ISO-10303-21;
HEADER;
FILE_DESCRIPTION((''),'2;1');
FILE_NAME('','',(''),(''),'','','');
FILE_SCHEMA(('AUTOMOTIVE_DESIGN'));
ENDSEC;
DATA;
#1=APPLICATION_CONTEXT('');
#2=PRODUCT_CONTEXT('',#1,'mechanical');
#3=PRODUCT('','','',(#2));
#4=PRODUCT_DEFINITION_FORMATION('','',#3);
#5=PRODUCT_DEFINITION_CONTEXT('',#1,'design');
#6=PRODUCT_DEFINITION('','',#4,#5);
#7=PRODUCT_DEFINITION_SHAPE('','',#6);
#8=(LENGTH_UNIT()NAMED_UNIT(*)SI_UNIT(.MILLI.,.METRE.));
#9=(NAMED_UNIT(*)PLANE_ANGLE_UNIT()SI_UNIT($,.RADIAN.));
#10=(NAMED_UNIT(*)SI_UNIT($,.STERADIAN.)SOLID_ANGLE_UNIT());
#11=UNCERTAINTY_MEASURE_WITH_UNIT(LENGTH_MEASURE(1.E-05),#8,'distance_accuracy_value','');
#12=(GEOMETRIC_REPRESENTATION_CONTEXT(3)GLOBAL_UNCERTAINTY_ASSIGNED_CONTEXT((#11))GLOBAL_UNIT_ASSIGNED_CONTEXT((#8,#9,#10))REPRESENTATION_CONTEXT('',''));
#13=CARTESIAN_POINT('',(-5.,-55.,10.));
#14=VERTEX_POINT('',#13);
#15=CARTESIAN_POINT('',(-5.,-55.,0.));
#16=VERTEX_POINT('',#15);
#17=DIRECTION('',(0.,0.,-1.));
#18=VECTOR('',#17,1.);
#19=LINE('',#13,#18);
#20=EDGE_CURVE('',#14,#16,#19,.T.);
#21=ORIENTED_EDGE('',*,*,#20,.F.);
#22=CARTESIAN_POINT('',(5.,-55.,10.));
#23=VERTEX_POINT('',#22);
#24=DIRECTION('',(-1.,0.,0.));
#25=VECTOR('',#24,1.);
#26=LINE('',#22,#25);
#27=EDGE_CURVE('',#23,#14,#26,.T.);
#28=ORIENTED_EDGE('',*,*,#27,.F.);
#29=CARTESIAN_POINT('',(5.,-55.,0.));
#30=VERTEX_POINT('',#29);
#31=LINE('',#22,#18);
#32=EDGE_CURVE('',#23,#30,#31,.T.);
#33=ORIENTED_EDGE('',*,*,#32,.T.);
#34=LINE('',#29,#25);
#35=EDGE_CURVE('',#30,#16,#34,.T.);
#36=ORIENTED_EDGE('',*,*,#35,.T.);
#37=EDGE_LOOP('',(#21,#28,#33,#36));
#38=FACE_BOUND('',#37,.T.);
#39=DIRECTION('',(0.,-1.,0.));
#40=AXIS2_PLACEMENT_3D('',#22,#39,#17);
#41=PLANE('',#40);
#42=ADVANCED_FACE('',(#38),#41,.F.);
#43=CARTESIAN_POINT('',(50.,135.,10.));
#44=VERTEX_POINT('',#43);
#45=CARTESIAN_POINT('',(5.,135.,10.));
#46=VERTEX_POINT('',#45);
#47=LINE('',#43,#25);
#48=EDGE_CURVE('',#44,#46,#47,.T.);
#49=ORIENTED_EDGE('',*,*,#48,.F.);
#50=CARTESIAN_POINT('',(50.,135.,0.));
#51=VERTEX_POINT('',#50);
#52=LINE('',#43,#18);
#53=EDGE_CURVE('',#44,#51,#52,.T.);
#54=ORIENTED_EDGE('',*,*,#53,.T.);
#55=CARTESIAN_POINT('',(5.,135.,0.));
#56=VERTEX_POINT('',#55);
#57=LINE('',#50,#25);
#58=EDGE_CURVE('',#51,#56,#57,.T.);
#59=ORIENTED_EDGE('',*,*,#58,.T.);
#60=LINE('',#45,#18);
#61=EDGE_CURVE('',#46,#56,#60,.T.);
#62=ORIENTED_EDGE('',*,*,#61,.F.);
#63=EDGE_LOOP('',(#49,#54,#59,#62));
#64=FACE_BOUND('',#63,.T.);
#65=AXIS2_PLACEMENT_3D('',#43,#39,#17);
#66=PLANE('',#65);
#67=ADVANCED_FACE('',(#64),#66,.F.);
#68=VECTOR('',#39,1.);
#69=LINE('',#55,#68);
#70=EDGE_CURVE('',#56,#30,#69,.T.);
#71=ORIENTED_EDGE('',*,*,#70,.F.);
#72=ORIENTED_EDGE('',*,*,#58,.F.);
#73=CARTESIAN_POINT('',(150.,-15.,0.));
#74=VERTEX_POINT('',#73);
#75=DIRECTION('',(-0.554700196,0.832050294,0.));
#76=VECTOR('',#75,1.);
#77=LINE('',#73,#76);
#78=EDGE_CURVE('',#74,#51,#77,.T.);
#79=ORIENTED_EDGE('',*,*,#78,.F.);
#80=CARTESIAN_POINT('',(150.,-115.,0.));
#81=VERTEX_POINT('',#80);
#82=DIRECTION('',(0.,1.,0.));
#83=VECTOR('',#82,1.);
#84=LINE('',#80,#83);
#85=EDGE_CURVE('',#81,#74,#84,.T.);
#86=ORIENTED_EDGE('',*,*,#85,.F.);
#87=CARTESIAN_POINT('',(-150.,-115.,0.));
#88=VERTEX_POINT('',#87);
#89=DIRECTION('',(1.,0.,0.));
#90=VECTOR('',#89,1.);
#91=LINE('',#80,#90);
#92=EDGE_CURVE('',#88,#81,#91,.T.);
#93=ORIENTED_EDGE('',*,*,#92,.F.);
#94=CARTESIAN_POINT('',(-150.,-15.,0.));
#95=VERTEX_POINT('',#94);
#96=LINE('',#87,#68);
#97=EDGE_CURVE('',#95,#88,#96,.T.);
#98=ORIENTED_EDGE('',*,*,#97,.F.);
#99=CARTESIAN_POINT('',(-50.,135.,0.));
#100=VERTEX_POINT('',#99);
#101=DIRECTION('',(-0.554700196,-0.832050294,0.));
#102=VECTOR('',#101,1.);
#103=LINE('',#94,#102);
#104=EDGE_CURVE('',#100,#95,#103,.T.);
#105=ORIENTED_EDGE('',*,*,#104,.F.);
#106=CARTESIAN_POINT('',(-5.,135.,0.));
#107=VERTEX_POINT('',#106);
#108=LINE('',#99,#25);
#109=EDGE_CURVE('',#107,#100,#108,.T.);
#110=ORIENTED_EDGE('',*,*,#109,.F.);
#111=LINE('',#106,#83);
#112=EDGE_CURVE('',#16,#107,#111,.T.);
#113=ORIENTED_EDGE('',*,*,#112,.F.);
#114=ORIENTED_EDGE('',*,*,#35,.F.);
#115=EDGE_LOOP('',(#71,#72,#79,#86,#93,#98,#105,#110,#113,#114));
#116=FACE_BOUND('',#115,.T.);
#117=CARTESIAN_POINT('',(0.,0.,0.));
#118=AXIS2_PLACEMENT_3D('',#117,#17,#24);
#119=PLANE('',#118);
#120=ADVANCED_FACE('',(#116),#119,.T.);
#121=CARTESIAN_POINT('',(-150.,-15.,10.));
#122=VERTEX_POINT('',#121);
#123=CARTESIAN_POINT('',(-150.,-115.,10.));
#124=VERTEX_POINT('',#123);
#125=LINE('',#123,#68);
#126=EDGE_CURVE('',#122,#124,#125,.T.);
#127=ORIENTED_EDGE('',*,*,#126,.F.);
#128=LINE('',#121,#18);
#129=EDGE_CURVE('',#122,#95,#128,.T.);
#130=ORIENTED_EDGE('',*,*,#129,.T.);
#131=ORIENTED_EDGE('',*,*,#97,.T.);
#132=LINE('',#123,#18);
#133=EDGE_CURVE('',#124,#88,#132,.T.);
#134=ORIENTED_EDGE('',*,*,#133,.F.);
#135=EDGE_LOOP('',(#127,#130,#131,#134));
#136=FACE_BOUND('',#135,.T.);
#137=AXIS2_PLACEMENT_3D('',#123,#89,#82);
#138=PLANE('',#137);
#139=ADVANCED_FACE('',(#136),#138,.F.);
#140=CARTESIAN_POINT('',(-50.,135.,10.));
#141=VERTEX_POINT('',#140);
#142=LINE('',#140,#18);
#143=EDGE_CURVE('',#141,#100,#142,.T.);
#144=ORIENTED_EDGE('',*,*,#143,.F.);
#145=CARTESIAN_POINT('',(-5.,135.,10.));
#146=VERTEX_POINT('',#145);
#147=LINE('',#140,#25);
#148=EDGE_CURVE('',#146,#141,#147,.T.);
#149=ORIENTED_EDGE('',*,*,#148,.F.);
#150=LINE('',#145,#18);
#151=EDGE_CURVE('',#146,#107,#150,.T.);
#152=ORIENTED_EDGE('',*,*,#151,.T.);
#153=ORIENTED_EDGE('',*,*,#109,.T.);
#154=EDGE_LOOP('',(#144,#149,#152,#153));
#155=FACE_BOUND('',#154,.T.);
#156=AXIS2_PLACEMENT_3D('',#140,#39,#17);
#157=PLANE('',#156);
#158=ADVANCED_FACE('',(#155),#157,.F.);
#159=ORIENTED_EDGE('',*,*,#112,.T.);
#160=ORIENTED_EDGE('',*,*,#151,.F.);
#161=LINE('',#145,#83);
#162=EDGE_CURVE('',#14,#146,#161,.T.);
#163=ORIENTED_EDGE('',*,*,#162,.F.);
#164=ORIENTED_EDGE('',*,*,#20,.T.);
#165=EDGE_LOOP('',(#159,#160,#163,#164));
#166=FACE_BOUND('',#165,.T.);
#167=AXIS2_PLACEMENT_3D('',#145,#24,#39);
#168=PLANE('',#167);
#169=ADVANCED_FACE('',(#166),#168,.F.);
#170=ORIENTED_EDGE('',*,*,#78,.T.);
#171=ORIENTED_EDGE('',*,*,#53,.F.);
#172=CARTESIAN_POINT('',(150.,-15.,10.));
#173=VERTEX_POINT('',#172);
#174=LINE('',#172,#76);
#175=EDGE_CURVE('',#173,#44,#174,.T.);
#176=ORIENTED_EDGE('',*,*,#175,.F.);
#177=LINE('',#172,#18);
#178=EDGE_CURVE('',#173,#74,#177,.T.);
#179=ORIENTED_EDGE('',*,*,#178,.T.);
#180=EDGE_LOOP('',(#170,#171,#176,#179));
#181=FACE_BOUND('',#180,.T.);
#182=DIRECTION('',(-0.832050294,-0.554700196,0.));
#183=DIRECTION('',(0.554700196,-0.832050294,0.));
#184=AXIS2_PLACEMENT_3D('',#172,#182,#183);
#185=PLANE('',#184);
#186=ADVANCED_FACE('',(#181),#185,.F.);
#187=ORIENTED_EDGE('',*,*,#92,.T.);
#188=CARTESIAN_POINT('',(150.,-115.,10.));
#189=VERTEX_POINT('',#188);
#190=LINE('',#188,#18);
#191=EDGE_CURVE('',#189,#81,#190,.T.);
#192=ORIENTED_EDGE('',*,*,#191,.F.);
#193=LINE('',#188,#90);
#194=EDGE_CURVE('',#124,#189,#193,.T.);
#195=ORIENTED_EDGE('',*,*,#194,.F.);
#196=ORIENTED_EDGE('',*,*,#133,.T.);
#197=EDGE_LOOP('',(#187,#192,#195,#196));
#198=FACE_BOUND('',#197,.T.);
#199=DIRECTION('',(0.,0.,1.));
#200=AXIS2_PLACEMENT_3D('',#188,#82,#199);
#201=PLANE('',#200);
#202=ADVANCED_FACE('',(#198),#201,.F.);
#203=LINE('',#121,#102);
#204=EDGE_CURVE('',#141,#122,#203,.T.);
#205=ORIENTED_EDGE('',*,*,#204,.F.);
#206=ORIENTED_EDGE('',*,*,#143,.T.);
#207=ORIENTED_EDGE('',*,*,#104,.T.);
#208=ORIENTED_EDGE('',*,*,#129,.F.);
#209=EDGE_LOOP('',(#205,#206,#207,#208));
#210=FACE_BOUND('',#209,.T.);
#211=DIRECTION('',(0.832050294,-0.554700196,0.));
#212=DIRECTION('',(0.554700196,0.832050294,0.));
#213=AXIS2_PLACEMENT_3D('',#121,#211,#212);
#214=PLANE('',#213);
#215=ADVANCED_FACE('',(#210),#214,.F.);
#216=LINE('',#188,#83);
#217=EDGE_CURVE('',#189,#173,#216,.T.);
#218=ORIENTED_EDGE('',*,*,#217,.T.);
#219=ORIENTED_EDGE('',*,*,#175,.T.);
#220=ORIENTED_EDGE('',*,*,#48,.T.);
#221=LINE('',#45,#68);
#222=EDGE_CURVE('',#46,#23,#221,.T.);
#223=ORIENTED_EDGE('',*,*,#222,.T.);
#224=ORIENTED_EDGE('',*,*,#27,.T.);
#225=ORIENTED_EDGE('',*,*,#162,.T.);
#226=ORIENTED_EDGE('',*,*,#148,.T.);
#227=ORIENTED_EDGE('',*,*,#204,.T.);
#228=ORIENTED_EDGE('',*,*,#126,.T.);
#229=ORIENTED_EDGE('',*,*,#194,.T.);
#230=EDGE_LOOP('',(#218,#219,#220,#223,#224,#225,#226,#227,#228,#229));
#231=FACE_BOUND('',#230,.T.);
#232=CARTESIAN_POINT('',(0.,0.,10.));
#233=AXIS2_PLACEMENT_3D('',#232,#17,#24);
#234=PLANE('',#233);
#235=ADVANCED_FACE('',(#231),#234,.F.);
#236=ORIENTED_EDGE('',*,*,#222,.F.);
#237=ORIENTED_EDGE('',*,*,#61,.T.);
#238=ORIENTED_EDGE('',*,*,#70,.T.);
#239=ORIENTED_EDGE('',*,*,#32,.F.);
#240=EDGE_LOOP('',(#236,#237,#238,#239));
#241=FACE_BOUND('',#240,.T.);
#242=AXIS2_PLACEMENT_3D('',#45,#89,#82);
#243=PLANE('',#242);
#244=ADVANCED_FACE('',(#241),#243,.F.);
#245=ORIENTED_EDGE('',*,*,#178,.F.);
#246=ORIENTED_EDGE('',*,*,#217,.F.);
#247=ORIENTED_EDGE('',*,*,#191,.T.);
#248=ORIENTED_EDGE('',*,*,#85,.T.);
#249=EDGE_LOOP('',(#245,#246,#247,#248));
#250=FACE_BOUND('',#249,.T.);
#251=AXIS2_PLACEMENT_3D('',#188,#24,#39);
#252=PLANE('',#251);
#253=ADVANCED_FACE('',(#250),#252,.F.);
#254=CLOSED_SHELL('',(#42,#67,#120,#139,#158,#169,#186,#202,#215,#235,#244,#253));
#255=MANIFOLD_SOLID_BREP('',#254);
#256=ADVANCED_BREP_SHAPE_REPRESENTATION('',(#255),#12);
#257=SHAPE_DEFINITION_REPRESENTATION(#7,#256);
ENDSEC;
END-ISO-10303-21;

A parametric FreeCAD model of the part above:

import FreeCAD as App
import Part
import Sketcher
Q = App.Units.Quantity


def add_polygon(sketch, points):
    """Adds a closed chain of lines whose ends are joined by coincident constraints."""
    first, n = sketch.GeometryCount, len(points)
    for a, b in zip(points, points[1:] + points[:1]):
        sketch.addGeometry(Part.LineSegment(App.Vector(*a, 0), App.Vector(*b, 0)), False)
    for i in range(n):
        sketch.addConstraint(Sketcher.Constraint("Coincident", first + i, 2, first + (i + 1) % n, 1))

doc = App.newDocument("Part")
params = doc.addObject("Spreadsheet::Sheet", "Params")
for row, (alias, value) in enumerate([
    ("sketch1_width", "300 mm"),
    ("sketch1_width2", "45 mm"),
    ("sketch1_width3", "10 mm"),
    ("sketch1_height", "100 mm"),
    ("sketch1_height2", "190 mm"),
    ("pad1_length", "10 mm"),
], start=1):
    params.set(f"A{row}", alias)
    params.set(f"B{row}", "=" + value)
    params.setAlias(f"B{row}", alias)

body = doc.addObject("PartDesign::Body", "Body")

# Sketch on XY plane
sketch1 = body.newObject("Sketcher::SketchObject", "Sketch")
sketch1.AttachmentSupport = (doc.getObject("XY_Plane"), [""])
sketch1.MapMode = "FlatFace"
add_polygon(sketch1, [(-150, -115), (150, -115), (150, -15), (50, 135), (5, 135), (5, -55), (-5, -55), (-5, 135), (-50, 135), (-150, -15)])  # lines 0-9
sketch1.addConstraint(Sketcher.Constraint("Horizontal", 0))
sketch1.addConstraint(Sketcher.Constraint("Vertical", 1))
sketch1.addConstraint(Sketcher.Constraint("Horizontal", 3))
sketch1.addConstraint(Sketcher.Constraint("Vertical", 4))
sketch1.addConstraint(Sketcher.Constraint("Horizontal", 5))
sketch1.addConstraint(Sketcher.Constraint("Vertical", 6))
sketch1.addConstraint(Sketcher.Constraint("Horizontal", 7))
sketch1.addConstraint(Sketcher.Constraint("Vertical", 9))
sketch1.addConstraint(Sketcher.Constraint("Symmetric", 3, 2, 6, 2, -2))
sketch1.addConstraint(Sketcher.Constraint("Symmetric", 1, 2, 8, 2, -2))
sketch1.addConstraint(Sketcher.Constraint("Equal", 3, 7))
sketch1.addConstraint(Sketcher.Constraint("DistanceX", 0, 1, 0, 2, Q("300 mm")))
sketch1.addConstraint(Sketcher.Constraint("DistanceX", 3, 2, 3, 1, Q("45 mm")))
sketch1.addConstraint(Sketcher.Constraint("DistanceX", 5, 2, 5, 1, Q("10 mm")))
sketch1.addConstraint(Sketcher.Constraint("DistanceY", 1, 1, 1, 2, Q("100 mm")))
sketch1.addConstraint(Sketcher.Constraint("DistanceY", 4, 2, 4, 1, Q("190 mm")))
sketch1.addConstraint(Sketcher.Constraint("DistanceY", 0, 2, -1, 1, Q("115 mm")))
sketch1.addConstraint(Sketcher.Constraint("DistanceY", -1, 1, 2, 2, Q("135 mm")))
sketch1.setExpression("Constraints[21]", "Params.sketch1_width")
sketch1.setExpression("Constraints[22]", "Params.sketch1_width2")
sketch1.setExpression("Constraints[23]", "Params.sketch1_width3")
sketch1.setExpression("Constraints[24]", "Params.sketch1_height")
sketch1.setExpression("Constraints[25]", "Params.sketch1_height2")
pad1 = body.newObject("PartDesign::Pad", "Pad")
pad1.Profile = sketch1
pad1.setExpression("Length", "Params.pad1_length")

doc.recompute()
